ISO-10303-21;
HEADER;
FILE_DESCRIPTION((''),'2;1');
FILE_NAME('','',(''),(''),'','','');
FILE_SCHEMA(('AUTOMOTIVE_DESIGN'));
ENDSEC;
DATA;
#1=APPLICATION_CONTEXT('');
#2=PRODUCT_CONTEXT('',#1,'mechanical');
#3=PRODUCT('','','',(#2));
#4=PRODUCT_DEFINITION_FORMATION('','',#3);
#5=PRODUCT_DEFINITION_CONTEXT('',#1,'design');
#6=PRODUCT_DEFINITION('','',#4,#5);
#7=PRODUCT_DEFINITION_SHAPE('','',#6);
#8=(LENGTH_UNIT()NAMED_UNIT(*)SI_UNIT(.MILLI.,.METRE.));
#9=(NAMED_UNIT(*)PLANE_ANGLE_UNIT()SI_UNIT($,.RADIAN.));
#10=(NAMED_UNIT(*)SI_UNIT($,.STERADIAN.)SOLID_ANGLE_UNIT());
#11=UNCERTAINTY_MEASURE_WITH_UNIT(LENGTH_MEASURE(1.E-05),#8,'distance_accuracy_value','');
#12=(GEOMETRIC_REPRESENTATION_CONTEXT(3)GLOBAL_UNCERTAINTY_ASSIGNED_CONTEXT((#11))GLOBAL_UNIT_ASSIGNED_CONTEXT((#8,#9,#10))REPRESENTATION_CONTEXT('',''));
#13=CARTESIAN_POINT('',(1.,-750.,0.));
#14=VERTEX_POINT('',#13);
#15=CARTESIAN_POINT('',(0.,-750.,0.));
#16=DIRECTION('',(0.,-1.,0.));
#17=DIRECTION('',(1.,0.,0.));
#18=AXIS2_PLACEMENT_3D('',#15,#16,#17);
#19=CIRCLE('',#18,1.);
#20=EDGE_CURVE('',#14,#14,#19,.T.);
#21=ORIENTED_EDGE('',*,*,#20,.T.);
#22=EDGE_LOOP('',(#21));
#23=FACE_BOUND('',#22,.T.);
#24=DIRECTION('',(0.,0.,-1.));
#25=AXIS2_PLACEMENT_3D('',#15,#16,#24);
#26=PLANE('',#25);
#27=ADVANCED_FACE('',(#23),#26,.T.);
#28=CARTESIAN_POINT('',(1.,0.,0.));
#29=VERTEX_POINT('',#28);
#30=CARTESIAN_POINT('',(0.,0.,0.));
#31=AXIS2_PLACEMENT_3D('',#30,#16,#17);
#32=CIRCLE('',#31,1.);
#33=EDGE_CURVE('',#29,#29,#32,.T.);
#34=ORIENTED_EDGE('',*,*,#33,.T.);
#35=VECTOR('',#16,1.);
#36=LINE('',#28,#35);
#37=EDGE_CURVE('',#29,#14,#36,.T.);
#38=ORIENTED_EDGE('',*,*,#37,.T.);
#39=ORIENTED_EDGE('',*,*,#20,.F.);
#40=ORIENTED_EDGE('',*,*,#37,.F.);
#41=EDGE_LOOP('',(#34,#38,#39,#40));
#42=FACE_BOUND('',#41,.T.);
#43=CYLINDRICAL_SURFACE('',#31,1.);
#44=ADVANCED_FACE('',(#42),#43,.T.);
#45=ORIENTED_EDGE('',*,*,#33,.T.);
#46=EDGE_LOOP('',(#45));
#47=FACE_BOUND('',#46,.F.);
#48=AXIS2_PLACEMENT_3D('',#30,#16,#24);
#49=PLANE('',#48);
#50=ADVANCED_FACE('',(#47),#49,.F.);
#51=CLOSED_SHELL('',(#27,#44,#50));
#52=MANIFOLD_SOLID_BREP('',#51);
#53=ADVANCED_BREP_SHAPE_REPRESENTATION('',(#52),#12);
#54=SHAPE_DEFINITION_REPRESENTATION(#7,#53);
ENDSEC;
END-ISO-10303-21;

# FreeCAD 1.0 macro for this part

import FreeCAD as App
import Part
import Sketcher

doc = App.newDocument("Part")
body = doc.addObject("PartDesign::Body", "Body")

# Sketch on XZ plane
sketch1 = doc.addObject("Sketcher::SketchObject", "Sketch")
body.addObject(sketch1)
sketch1.AttachmentSupport = (doc.XZ_Plane, [""])
sketch1.MapMode = "FlatFace"
sketch1.addGeometry(Part.Circle(App.Vector(0, 0, 0), App.Vector(0, 0, 1), 1), False)
sketch1.addConstraint([
    Sketcher.Constraint("Coincident", 0, 3, -1, 1),
    Sketcher.Constraint("Diameter", 0, 2.0),
])

# Sketch on XY plane
sketch2 = doc.addObject("Sketcher::SketchObject", "Sketch001")
body.addObject(sketch2)
sketch2.AttachmentSupport = (doc.XY_Plane, [""])
sketch2.MapMode = "FlatFace"
sketch2.addGeometry(Part.LineSegment(App.Vector(0, 0, 0), App.Vector(0, -750, 0)), False)
sketch2.addConstraint([
    Sketcher.Constraint("Vertical", 0),
    Sketcher.Constraint("Coincident", 0, 1, -1, 1),
    Sketcher.Constraint("DistanceY", 0, 2, 0, 1, 750.0),
])
doc.recompute()

additivepipe = doc.addObject("PartDesign::AdditivePipe", "AdditivePipe")
body.addObject(additivepipe)
additivepipe.Profile = sketch1
additivepipe.Spine = (sketch2, ["Edge1"])

doc.recompute()
